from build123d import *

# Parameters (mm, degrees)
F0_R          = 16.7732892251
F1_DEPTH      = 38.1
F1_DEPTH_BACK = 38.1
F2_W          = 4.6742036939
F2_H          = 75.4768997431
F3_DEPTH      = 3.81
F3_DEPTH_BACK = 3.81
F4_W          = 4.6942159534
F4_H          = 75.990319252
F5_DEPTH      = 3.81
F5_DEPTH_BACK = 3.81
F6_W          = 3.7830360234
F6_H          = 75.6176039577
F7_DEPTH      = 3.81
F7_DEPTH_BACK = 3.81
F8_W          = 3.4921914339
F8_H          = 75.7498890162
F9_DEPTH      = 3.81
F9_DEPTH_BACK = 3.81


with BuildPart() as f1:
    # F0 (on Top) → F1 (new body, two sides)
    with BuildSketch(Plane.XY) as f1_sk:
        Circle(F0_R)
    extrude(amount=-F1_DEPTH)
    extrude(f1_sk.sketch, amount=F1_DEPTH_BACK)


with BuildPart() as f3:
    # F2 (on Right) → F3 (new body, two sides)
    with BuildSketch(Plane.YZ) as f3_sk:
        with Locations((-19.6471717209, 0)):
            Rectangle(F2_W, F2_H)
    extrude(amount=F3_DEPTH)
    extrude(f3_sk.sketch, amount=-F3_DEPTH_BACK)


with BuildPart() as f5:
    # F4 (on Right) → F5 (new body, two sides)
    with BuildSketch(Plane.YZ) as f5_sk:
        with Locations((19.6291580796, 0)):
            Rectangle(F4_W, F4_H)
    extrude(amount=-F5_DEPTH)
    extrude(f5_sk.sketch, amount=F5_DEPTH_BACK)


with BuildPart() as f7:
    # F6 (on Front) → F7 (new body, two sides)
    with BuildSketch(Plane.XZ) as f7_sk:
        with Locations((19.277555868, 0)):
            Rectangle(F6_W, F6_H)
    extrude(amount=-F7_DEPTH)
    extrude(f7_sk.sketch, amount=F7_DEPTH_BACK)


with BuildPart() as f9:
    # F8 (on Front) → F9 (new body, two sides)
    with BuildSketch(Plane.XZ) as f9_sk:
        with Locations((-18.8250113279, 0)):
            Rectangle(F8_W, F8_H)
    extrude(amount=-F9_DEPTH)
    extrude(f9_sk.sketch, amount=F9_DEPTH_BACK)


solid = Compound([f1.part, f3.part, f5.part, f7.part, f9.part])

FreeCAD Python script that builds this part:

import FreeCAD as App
import Part
import Sketcher
from FreeCAD import Vector
Q = App.Units.Quantity

doc = App.newDocument("Part")
params = doc.addObject("Spreadsheet::Sheet", "Params")
for row, (alias, value) in enumerate([
    ("pad1_length", "1.5 in"),
    ("pad1_length2", "1.5 in"),
    ("pad2_length", "0.15 in"),
    ("pad2_length2", "0.15 in"),
    ("pad3_length", "0.15 in"),
    ("pad3_length2", "0.15 in"),
    ("pad4_length", "0.15 in"),
    ("pad4_length2", "0.15 in"),
    ("pad5_length", "0.15 in"),
    ("pad5_length2", "0.15 in"),
], start=1):
    params.set(f"A{row}", alias)
    params.set(f"B{row}", "=" + value)
    params.setAlias(f"B{row}", alias)

body = doc.addObject("PartDesign::Body", "Body")

sketch1 = body.newObject("Sketcher::SketchObject", "Sketch")
sketch1.AttachmentSupport = (doc.getObject("XY_Plane"), [""])
sketch1.MapMode = "FlatFace"
sketch1.addGeometry(Part.Circle(Vector(0, 0, 0), Vector(0, 0, 1), 17), False)
sketch1.addConstraint(Sketcher.Constraint("Coincident", 0, 3, -1, 1))
sketch1.addConstraint(Sketcher.Constraint("Diameter", 0, Q("33.546578 mm")))
pad1 = body.newObject("PartDesign::Pad", "Pad")
pad1.Profile = sketch1
pad1.Type = "TwoLengths"
pad1.setExpression("Length", "Params.pad1_length")
pad1.setExpression("Length2", "Params.pad1_length2")
pad1.Reversed = True
body2 = doc.addObject("PartDesign::Body", "Body001")

sketch2 = body2.newObject("Sketcher::SketchObject", "Sketch001")
sketch2.AttachmentSupport = (doc.getObject("YZ_Plane001"), [""])
sketch2.MapMode = "FlatFace"
sketch2.addGeometry(Part.LineSegment(Vector(-22, 37.7, 0), Vector(-22, -37.7, 0)), False)
sketch2.addGeometry(Part.LineSegment(Vector(-22, -37.7, 0), Vector(-17.3, -37.7, 0)), False)
sketch2.addGeometry(Part.LineSegment(Vector(-17.3, -37.7, 0), Vector(-17.3, 37.7, 0)), False)
sketch2.addGeometry(Part.LineSegment(Vector(-17.3, 37.7, 0), Vector(-22, 37.7, 0)), False)
sketch2.addConstraint(Sketcher.Constraint("Coincident", 0, 2, 1, 1))
sketch2.addConstraint(Sketcher.Constraint("Coincident", 1, 2, 2, 1))
sketch2.addConstraint(Sketcher.Constraint("Coincident", 2, 2, 3, 1))
sketch2.addConstraint(Sketcher.Constraint("Coincident", 3, 2, 0, 1))
sketch2.addConstraint(Sketcher.Constraint("Vertical", 0))
sketch2.addConstraint(Sketcher.Constraint("Horizontal", 1))
sketch2.addConstraint(Sketcher.Constraint("Vertical", 2))
sketch2.addConstraint(Sketcher.Constraint("Horizontal", 3))
sketch2.addConstraint(Sketcher.Constraint("DistanceY", 0, 2, 0, 1, Q("75.4769 mm")))
sketch2.addConstraint(Sketcher.Constraint("DistanceX", 1, 1, 1, 2, Q("4.674204 mm")))
sketch2.addConstraint(Sketcher.Constraint("DistanceY", 0, 2, -1, 1, Q("37.73845 mm")))
sketch2.addConstraint(Sketcher.Constraint("DistanceX", 1, 2, -1, 1, Q("17.31007 mm")))
pad2 = body2.newObject("PartDesign::Pad", "Pad001")
pad2.Profile = sketch2
pad2.Type = "TwoLengths"
pad2.setExpression("Length", "Params.pad2_length")
pad2.setExpression("Length2", "Params.pad2_length2")
body3 = doc.addObject("PartDesign::Body", "Body002")

sketch3 = body3.newObject("Sketcher::SketchObject", "Sketch002")
sketch3.AttachmentSupport = (doc.getObject("YZ_Plane002"), [""])
sketch3.MapMode = "FlatFace"
sketch3.addGeometry(Part.LineSegment(Vector(17.3, 38, 0), Vector(17.3, -38, 0)), False)
sketch3.addGeometry(Part.LineSegment(Vector(17.3, -38, 0), Vector(22, -38, 0)), False)
sketch3.addGeometry(Part.LineSegment(Vector(22, -38, 0), Vector(22, 38, 0)), False)
sketch3.addGeometry(Part.LineSegment(Vector(22, 38, 0), Vector(17.3, 38, 0)), False)
sketch3.addConstraint(Sketcher.Constraint("Coincident", 0, 2, 1, 1))
sketch3.addConstraint(Sketcher.Constraint("Coincident", 1, 2, 2, 1))
sketch3.addConstraint(Sketcher.Constraint("Coincident", 2, 2, 3, 1))
sketch3.addConstraint(Sketcher.Constraint("Coincident", 3, 2, 0, 1))
sketch3.addConstraint(Sketcher.Constraint("Vertical", 0))
sketch3.addConstraint(Sketcher.Constraint("Horizontal", 1))
sketch3.addConstraint(Sketcher.Constraint("Vertical", 2))
sketch3.addConstraint(Sketcher.Constraint("Horizontal", 3))
sketch3.addConstraint(Sketcher.Constraint("DistanceY", 0, 2, 0, 1, Q("75.990319 mm")))
sketch3.addConstraint(Sketcher.Constraint("DistanceX", 1, 1, 1, 2, Q("4.694216 mm")))
sketch3.addConstraint(Sketcher.Constraint("DistanceX", -1, 1, 0, 2, Q("17.28205 mm")))
sketch3.addConstraint(Sketcher.Constraint("DistanceY", 0, 2, -1, 1, Q("37.99516 mm")))
pad3 = body3.newObject("PartDesign::Pad", "Pad002")
pad3.Profile = sketch3
pad3.Type = "TwoLengths"
pad3.setExpression("Length", "Params.pad3_length")
pad3.setExpression("Length2", "Params.pad3_length2")
pad3.Reversed = True
body4 = doc.addObject("PartDesign::Body", "Body003")

sketch4 = body4.newObject("Sketcher::SketchObject", "Sketch003")
sketch4.AttachmentSupport = (doc.getObject("XZ_Plane003"), [""])
sketch4.MapMode = "FlatFace"
sketch4.addGeometry(Part.LineSegment(Vector(17.4, 37.8, 0), Vector(17.4, -37.8, 0)), False)
sketch4.addGeometry(Part.LineSegment(Vector(17.4, -37.8, 0), Vector(21.2, -37.8, 0)), False)
sketch4.addGeometry(Part.LineSegment(Vector(21.2, -37.8, 0), Vector(21.2, 37.8, 0)), False)
sketch4.addGeometry(Part.LineSegment(Vector(21.2, 37.8, 0), Vector(17.4, 37.8, 0)), False)
sketch4.addConstraint(Sketcher.Constraint("Coincident", 0, 2, 1, 1))
sketch4.addConstraint(Sketcher.Constraint("Coincident", 1, 2, 2, 1))
sketch4.addConstraint(Sketcher.Constraint("Coincident", 2, 2, 3, 1))
sketch4.addConstraint(Sketcher.Constraint("Coincident", 3, 2, 0, 1))
sketch4.addConstraint(Sketcher.Constraint("Vertical", 0))
sketch4.addConstraint(Sketcher.Constraint("Horizontal", 1))
sketch4.addConstraint(Sketcher.Constraint("Vertical", 2))
sketch4.addConstraint(Sketcher.Constraint("Horizontal", 3))
sketch4.addConstraint(Sketcher.Constraint("DistanceY", 0, 2, -1, 1, Q("37.808802 mm")))
sketch4.addConstraint(Sketcher.Constraint("DistanceY", -1, 1, 2, 2, Q("37.808802 mm")))
sketch4.addConstraint(Sketcher.Constraint("DistanceX", 1, 1, 1, 2, Q("3.783036 mm")))
sketch4.addConstraint(Sketcher.Constraint("DistanceX", -1, 1, 0, 2, Q("17.386038 mm")))
pad4 = body4.newObject("PartDesign::Pad", "Pad003")
pad4.Profile = sketch4
pad4.Type = "TwoLengths"
pad4.setExpression("Length", "Params.pad4_length")
pad4.setExpression("Length2", "Params.pad4_length2")
pad4.Reversed = True
body5 = doc.addObject("PartDesign::Body", "Body004")

sketch5 = body5.newObject("Sketcher::SketchObject", "Sketch004")
sketch5.AttachmentSupport = (doc.getObject("XZ_Plane004"), [""])
sketch5.MapMode = "FlatFace"
sketch5.addGeometry(Part.LineSegment(Vector(-20.6, 37.9, 0), Vector(-20.6, -37.9, 0)), False)
sketch5.addGeometry(Part.LineSegment(Vector(-20.6, -37.9, 0), Vector(-17.1, -37.9, 0)), False)
sketch5.addGeometry(Part.LineSegment(Vector(-17.1, -37.9, 0), Vector(-17.1, 37.9, 0)), False)
sketch5.addGeometry(Part.LineSegment(Vector(-17.1, 37.9, 0), Vector(-20.6, 37.9, 0)), False)
sketch5.addConstraint(Sketcher.Constraint("Coincident", 0, 2, 1, 1))
sketch5.addConstraint(Sketcher.Constraint("Coincident", 1, 2, 2, 1))
sketch5.addConstraint(Sketcher.Constraint("Coincident", 2, 2, 3, 1))
sketch5.addConstraint(Sketcher.Constraint("Coincident", 3, 2, 0, 1))
sketch5.addConstraint(Sketcher.Constraint("Vertical", 0))
sketch5.addConstraint(Sketcher.Constraint("Horizontal", 1))
sketch5.addConstraint(Sketcher.Constraint("Vertical", 2))
sketch5.addConstraint(Sketcher.Constraint("Horizontal", 3))
sketch5.addConstraint(Sketcher.Constraint("DistanceX", 1, 1, 1, 2, Q("3.492191 mm")))
sketch5.addConstraint(Sketcher.Constraint("DistanceY", 0, 2, 0, 1, Q("75.749889 mm")))
sketch5.addConstraint(Sketcher.Constraint("DistanceX", 0, 2, -1, 1, Q("20.571107 mm")))
sketch5.addConstraint(Sketcher.Constraint("DistanceY", 0, 2, -1, 1, Q("37.874945 mm")))
pad5 = body5.newObject("PartDesign::Pad", "Pad004")
pad5.Profile = sketch5
pad5.Type = "TwoLengths"
pad5.setExpression("Length", "Params.pad5_length")
pad5.setExpression("Length2", "Params.pad5_length2")
pad5.Reversed = True

doc.recompute()
